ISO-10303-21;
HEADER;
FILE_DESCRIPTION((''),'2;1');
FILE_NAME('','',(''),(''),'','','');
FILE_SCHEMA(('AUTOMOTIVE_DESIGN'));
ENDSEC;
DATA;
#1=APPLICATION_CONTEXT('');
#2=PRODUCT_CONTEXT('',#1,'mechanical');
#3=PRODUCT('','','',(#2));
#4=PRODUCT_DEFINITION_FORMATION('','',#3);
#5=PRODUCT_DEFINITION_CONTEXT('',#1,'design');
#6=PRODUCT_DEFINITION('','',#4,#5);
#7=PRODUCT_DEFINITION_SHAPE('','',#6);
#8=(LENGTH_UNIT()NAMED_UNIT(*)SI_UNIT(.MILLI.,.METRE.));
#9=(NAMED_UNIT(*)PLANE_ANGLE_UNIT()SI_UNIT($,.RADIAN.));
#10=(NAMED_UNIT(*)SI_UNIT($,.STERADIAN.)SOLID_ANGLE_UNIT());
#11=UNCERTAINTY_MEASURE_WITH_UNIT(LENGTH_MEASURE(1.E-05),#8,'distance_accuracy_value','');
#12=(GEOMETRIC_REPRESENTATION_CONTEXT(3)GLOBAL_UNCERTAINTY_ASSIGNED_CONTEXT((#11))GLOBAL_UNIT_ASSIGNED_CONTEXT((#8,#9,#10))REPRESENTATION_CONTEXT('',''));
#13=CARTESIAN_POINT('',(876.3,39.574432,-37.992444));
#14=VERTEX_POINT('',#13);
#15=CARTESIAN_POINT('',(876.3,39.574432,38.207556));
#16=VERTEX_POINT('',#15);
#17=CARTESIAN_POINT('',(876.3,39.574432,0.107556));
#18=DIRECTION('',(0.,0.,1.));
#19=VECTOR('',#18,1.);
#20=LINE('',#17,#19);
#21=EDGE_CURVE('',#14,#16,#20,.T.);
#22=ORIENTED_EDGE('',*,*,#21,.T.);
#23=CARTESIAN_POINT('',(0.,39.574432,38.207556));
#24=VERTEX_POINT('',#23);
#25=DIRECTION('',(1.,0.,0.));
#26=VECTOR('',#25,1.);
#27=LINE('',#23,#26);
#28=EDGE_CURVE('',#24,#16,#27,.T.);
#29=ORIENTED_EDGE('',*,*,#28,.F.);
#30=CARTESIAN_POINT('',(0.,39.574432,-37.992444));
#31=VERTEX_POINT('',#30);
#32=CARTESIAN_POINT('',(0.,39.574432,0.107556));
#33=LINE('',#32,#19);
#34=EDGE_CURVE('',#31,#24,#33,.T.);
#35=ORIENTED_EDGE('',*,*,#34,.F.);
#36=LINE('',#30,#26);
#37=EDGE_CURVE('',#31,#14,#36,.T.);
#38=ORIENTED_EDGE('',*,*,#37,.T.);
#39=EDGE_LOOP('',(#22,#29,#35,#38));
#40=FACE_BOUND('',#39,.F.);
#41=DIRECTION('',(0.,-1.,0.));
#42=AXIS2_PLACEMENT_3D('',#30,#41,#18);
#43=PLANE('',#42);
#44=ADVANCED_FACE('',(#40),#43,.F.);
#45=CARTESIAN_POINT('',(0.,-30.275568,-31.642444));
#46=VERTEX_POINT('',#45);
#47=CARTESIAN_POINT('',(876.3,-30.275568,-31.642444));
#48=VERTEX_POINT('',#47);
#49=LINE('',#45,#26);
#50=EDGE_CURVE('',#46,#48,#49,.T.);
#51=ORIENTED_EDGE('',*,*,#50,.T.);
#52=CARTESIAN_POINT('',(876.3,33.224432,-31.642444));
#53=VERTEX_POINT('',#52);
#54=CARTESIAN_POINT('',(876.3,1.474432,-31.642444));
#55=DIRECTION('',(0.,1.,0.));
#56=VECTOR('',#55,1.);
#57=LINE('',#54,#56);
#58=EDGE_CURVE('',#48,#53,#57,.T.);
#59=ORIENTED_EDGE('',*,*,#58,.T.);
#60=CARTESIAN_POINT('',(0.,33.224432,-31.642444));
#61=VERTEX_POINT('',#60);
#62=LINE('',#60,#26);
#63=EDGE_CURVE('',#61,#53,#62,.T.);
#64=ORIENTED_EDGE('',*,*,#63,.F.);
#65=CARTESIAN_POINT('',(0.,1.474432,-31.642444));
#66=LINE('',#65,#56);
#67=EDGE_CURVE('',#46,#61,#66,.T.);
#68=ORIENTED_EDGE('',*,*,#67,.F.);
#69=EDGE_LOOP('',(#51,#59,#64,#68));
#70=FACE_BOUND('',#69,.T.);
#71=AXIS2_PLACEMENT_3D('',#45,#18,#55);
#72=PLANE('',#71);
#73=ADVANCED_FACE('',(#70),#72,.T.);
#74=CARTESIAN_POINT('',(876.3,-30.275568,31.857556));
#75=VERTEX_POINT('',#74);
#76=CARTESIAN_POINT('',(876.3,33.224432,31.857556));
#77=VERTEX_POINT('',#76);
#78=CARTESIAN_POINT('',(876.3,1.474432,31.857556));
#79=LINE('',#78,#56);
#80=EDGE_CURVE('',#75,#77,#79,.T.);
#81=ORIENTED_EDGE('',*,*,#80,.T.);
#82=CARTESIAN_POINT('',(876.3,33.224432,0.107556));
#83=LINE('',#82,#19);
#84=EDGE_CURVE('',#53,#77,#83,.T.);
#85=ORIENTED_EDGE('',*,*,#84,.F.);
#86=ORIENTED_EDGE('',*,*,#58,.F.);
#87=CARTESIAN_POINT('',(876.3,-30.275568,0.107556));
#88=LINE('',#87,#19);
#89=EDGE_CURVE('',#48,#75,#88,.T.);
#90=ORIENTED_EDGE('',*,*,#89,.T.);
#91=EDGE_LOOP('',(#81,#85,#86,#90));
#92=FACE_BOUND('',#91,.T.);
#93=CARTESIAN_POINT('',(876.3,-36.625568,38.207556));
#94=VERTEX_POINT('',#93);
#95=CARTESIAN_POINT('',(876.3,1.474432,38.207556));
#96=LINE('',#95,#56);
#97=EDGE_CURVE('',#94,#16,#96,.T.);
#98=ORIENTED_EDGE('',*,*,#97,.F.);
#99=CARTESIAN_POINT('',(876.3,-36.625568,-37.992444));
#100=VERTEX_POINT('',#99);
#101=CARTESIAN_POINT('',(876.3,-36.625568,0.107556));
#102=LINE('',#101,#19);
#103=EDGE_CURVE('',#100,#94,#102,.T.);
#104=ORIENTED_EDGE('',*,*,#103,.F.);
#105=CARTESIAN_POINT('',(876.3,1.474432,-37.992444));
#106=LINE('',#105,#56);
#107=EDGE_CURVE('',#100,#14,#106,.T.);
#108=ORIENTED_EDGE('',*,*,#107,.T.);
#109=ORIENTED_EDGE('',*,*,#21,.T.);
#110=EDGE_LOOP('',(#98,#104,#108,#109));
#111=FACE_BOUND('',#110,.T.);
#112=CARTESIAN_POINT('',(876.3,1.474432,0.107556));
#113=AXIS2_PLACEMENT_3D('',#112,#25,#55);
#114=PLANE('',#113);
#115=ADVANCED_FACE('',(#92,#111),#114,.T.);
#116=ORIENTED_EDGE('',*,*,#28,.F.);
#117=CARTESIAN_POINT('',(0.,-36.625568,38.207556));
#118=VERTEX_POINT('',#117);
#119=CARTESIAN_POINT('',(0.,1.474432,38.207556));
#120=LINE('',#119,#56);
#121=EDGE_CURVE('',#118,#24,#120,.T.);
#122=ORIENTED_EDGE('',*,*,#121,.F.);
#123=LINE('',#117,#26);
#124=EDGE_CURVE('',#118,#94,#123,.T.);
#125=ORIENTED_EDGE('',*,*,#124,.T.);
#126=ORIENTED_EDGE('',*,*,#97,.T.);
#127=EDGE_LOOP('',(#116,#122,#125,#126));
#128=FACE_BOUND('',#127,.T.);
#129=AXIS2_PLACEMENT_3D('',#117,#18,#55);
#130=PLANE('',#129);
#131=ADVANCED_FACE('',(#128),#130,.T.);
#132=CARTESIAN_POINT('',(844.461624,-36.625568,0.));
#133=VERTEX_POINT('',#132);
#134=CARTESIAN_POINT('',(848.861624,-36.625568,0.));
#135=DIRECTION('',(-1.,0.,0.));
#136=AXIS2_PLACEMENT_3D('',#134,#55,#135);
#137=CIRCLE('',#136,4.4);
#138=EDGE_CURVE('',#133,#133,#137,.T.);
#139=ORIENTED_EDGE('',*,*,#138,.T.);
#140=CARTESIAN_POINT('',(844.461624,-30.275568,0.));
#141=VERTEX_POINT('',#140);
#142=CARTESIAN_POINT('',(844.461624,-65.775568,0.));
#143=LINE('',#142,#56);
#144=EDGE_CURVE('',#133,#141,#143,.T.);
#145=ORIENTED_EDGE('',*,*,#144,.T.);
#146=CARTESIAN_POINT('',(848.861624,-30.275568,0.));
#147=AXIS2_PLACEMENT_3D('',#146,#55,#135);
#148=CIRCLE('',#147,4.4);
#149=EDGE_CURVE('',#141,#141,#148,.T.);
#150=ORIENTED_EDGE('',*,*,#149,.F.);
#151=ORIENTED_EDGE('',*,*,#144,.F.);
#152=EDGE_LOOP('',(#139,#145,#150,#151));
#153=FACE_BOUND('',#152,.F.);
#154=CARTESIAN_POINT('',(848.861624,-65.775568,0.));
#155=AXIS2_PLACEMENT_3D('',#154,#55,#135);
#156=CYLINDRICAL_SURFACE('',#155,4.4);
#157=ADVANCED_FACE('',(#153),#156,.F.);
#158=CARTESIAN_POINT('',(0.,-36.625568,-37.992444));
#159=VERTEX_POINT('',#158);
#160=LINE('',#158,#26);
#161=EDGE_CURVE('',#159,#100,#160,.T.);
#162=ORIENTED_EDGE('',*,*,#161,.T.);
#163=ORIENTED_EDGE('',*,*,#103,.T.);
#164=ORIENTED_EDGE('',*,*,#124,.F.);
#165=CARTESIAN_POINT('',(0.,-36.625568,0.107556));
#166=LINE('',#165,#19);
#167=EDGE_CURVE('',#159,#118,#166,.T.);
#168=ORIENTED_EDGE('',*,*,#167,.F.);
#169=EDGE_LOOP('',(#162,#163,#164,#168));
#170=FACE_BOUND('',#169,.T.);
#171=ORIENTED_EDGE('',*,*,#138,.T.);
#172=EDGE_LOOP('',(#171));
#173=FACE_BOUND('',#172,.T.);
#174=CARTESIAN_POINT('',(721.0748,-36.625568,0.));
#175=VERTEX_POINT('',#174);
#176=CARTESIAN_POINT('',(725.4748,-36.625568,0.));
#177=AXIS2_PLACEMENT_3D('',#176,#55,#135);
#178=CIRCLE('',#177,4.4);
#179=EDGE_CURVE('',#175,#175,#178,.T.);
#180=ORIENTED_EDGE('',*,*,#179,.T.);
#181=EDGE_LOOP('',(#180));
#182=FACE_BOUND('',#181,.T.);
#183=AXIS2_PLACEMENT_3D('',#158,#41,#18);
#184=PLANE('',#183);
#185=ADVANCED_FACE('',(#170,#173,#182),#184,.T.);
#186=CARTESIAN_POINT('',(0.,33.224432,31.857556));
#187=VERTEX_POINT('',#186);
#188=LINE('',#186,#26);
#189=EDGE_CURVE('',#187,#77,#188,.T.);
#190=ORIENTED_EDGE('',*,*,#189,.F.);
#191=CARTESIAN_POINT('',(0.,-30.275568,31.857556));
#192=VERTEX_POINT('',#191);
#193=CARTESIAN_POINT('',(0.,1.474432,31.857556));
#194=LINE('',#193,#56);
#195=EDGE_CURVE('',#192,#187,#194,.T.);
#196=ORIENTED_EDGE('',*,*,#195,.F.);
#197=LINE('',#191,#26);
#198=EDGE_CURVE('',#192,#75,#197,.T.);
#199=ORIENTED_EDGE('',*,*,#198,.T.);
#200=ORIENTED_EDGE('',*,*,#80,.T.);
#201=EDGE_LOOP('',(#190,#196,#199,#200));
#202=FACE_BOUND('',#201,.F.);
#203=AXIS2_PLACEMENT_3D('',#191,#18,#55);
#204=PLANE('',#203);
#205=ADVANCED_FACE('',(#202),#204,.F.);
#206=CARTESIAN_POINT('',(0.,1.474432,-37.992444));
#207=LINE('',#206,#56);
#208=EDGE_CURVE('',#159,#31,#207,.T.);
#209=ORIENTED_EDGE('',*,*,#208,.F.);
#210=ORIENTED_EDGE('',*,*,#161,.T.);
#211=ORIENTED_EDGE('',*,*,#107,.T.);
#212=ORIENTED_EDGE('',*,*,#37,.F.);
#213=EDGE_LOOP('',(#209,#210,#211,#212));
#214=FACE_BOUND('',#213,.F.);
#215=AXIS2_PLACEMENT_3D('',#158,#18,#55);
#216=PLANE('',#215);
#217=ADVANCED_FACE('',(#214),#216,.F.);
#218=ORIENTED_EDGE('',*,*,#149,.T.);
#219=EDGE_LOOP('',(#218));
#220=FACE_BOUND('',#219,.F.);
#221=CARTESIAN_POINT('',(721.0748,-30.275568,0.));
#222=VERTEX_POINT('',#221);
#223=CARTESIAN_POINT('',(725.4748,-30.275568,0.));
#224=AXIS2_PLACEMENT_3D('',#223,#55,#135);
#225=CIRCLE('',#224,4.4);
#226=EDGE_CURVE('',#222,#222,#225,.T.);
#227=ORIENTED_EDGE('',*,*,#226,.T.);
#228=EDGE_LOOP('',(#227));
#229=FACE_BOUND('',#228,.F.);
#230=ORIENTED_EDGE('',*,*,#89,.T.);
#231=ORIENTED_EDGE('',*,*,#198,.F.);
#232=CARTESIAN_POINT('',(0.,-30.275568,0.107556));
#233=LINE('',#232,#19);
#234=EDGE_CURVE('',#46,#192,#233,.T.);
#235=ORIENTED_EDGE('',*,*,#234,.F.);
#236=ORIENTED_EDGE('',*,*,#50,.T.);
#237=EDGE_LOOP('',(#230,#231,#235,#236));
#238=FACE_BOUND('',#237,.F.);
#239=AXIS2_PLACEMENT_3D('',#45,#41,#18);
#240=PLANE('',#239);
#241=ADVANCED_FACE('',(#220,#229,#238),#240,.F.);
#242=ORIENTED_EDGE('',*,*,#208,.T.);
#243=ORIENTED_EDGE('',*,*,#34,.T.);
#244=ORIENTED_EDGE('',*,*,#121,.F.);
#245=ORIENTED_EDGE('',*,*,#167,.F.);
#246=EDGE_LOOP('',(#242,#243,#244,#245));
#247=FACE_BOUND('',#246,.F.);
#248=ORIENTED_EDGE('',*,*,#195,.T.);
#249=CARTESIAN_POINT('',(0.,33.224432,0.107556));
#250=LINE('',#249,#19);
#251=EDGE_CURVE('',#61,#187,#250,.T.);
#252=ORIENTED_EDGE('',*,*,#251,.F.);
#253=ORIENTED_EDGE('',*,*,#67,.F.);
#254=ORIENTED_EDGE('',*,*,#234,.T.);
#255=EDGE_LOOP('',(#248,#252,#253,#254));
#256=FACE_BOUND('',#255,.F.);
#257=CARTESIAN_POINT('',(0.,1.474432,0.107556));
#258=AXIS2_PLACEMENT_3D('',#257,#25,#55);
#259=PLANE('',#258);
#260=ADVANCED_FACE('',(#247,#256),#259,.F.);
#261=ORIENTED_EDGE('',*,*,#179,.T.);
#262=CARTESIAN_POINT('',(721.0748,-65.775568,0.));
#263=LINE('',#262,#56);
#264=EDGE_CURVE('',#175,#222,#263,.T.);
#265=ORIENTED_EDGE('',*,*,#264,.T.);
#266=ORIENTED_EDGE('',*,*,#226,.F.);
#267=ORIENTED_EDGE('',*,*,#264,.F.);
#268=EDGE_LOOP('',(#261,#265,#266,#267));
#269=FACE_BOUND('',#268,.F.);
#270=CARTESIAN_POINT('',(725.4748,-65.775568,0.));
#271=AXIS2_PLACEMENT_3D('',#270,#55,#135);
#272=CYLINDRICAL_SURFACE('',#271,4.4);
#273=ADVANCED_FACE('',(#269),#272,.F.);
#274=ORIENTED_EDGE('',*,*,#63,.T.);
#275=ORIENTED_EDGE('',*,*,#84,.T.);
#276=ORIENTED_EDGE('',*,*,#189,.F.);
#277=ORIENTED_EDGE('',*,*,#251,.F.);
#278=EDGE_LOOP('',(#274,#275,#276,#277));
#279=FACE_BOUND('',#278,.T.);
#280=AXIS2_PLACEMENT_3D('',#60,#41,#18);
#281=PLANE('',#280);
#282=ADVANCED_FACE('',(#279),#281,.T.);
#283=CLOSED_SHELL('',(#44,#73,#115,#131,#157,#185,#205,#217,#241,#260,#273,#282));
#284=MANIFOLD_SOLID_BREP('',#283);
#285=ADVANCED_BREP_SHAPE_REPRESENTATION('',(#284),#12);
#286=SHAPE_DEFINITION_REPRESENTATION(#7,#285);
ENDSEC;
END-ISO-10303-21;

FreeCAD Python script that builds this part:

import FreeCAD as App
import Part
import Sketcher
from FreeCAD import Vector
Q = App.Units.Quantity

doc = App.newDocument("Part")
body = doc.addObject("PartDesign::Body", "Body")

# Sketch on YZ plane
sketch1 = doc.addObject("Sketcher::SketchObject", "Sketch")
body.addObject(sketch1)
sketch1.AttachmentSupport = (doc.YZ_Plane, [""])
sketch1.MapMode = "FlatFace"
sketch1.addGeometry([
    Part.LineSegment(Vector(-37, 38, 0), Vector(-37, -38, 0)),  # 0
    Part.LineSegment(Vector(-37, -38, 0), Vector(40, -38, 0)),  # 1
    Part.LineSegment(Vector(40, -38, 0), Vector(40, 38, 0)),  # 2
    Part.LineSegment(Vector(40, 38, 0), Vector(-37, 38, 0)),  # 3
    Part.LineSegment(Vector(33, -32, 0), Vector(-30, -32, 0)),  # 4
    Part.LineSegment(Vector(-30, -32, 0), Vector(-30, 32, 0)),  # 5
    Part.LineSegment(Vector(-30, 32, 0), Vector(33, 32, 0)),  # 6
    Part.LineSegment(Vector(33, 32, 0), Vector(33, -32, 0)),  # 7
], False)
sketch1.addConstraint([
    Sketcher.Constraint("Coincident", 0, 2, 1, 1),
    Sketcher.Constraint("Coincident", 1, 2, 2, 1),
    Sketcher.Constraint("Coincident", 2, 2, 3, 1),
    Sketcher.Constraint("Coincident", 3, 2, 0, 1),
    Sketcher.Constraint("Coincident", 4, 2, 5, 1),
    Sketcher.Constraint("Coincident", 5, 2, 6, 1),
    Sketcher.Constraint("Coincident", 6, 2, 7, 1),
    Sketcher.Constraint("Coincident", 7, 2, 4, 1),
    Sketcher.Constraint("Vertical", 0),
    Sketcher.Constraint("Horizontal", 1),
    Sketcher.Constraint("Vertical", 2),
    Sketcher.Constraint("Horizontal", 3),
    Sketcher.Constraint("Horizontal", 4),
    Sketcher.Constraint("Vertical", 5),
    Sketcher.Constraint("Horizontal", 6),
    Sketcher.Constraint("Vertical", 7),
    Sketcher.Constraint("Equal", 3, 0),
    Sketcher.Constraint("Equal", 6, 5),
    Sketcher.Constraint("DistanceX", 1, 1, 1, 2, Q("3 in")),
    Sketcher.Constraint("DistanceX", 4, 2, 4, 1, Q("2.5 in")),
    Sketcher.Constraint("DistanceX", 0, 2, 4, 2, Q("0.25 in")),
    Sketcher.Constraint("DistanceY", 0, 2, 4, 2, Q("0.25 in")),
    Sketcher.Constraint("DistanceX", 0, 2, -1, 1, Q("36.625568 mm")),
    Sketcher.Constraint("DistanceY", 0, 2, -1, 1, Q("37.992444 mm")),
])
pad1 = doc.addObject("PartDesign::Pad", "Pad")
body.addObject(pad1)
pad1.Profile = sketch1
pad1.Length = Q("34.5 in")

# Sketch on XZ plane
sketch2 = doc.addObject("Sketcher::SketchObject", "Sketch001")
body.addObject(sketch2)
sketch2.AttachmentSupport = (doc.XZ_Plane, [""])
sketch2.MapMode = "FlatFace"
sketch2.AttachmentOffset = App.Placement(Vector(0, 0, 36.625568), App.Rotation())
sketch2.addGeometry([
    Part.Circle(Vector(848.9, 0, 0), Vector(0, 0, 1), 4.4),
    Part.Circle(Vector(725.5, 0, 0), Vector(0, 0, 1), 4.4),
], False)
sketch2.addConstraint([
    Sketcher.Constraint("Equal", 0, 1),
    Sketcher.Constraint("PointOnObject", 0, 3, -1),
    Sketcher.Constraint("PointOnObject", 1, 3, -1),
    Sketcher.Constraint("Diameter", 0, Q("8.8 mm")),
    Sketcher.Constraint("DistanceX", -1, 1, 1, 3, Q("28.562 in")),
    Sketcher.Constraint("DistanceX", -1, 1, 0, 3, Q("848.861624 mm")),
])
doc.recompute()
hole = doc.addObject("PartDesign::Hole", "Hole")
body.addObject(hole)
hole.Profile = sketch2
hole.ThreadType = "None"
hole.Diameter = 8.8
hole.DepthType = "Dimension"
hole.Depth = 29.15
hole.DrillPoint = "Angled"
hole.DrillPointAngle = 118

doc.recompute()
